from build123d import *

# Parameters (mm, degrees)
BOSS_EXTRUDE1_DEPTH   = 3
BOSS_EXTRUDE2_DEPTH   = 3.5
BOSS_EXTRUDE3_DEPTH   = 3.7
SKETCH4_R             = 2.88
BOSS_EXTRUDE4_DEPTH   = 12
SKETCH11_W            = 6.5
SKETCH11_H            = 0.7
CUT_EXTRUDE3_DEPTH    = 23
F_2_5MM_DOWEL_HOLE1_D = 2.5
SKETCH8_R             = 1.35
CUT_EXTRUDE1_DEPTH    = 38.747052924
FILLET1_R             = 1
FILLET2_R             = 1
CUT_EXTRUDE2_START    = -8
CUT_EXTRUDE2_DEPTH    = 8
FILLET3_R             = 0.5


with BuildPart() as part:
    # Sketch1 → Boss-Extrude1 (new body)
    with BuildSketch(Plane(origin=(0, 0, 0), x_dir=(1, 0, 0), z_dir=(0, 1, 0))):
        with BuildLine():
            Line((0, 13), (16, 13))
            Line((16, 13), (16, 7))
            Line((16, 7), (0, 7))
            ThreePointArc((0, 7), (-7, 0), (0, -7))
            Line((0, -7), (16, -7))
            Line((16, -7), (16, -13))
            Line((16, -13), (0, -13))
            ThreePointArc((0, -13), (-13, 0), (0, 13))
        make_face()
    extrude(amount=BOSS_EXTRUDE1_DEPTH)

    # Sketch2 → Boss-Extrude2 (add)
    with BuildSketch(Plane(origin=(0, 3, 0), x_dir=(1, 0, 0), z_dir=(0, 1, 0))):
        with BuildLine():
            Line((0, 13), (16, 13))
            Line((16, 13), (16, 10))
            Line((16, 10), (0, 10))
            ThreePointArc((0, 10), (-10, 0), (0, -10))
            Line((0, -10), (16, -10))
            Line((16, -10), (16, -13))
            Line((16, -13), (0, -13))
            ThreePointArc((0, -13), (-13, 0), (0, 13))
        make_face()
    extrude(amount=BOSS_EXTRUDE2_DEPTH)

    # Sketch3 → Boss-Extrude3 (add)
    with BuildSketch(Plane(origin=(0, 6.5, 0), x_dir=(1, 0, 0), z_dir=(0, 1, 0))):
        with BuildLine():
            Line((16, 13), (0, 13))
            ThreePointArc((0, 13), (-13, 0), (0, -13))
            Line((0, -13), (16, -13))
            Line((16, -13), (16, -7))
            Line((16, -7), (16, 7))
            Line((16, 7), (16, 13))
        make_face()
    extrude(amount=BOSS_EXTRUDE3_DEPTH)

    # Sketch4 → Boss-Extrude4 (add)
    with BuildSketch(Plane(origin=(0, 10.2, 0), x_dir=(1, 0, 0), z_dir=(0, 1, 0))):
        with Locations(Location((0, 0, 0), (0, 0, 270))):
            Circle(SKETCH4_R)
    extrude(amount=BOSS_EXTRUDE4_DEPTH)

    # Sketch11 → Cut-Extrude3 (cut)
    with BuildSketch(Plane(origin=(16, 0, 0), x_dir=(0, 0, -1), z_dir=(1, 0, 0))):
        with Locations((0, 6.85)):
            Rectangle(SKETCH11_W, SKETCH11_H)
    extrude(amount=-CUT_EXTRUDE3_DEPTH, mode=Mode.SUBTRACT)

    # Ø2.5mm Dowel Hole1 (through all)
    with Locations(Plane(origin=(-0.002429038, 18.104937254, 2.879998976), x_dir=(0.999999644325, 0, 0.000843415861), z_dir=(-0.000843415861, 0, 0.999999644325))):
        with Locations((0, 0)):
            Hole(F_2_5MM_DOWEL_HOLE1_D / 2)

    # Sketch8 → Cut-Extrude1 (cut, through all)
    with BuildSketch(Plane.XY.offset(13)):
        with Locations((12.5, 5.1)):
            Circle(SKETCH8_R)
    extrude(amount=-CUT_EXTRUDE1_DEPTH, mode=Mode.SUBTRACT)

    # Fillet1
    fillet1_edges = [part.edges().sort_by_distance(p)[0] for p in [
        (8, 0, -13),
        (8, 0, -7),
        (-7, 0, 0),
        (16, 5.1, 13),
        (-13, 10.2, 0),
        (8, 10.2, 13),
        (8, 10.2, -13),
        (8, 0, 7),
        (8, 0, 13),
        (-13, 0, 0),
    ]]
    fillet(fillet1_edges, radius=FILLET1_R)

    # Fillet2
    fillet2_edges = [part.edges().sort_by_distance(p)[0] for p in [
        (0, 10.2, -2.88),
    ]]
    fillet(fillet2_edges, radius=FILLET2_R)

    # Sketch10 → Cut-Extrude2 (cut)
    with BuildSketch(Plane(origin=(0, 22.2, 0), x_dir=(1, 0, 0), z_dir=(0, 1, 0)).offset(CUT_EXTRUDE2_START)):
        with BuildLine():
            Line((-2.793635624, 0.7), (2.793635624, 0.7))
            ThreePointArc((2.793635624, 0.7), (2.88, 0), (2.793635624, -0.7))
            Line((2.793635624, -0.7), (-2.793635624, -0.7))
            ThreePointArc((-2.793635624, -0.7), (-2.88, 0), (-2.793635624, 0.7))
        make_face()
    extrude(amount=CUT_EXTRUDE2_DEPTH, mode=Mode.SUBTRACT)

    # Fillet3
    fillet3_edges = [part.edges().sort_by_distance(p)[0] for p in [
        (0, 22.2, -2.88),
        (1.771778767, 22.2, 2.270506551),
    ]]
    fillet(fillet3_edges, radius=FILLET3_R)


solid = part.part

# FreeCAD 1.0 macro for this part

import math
import FreeCAD as App
import Part
import Sketcher
from FreeCAD import Vector


def edges_at(feature, points):
    """Names of the edges that pass closest to the given points."""
    edges = feature.Shape.Edges
    near = lambda p: min(range(len(edges)), key=lambda i: edges[i].distToShape(Part.Vertex(*p))[0])
    return sorted({f"Edge{near(p) + 1}" for p in points})

doc = App.newDocument("Part")
params = doc.addObject("Spreadsheet::Sheet", "Params")
for row, (alias, value) in enumerate([
    ("sketch1_radius", "13 mm"),
    ("sketch1_radius2", "7 mm"),
    ("sketch1_width", "16 mm"),
    ("pad1_length", "3 mm"),
    ("sketch2_radius", "13 mm"),
    ("sketch2_radius2", "10 mm"),
    ("sketch2_width", "16 mm"),
    ("pad2_length", "3.5 mm"),
    ("sketch3_radius", "13 mm"),
    ("sketch3_width", "16 mm"),
    ("pad3_length", "3.7 mm"),
    ("sketch4_diameter", "5.76 mm"),
    ("pad4_length", "12 mm"),
    ("sketch5_width", "0.7 mm"),
    ("sketch5_height", "6.5 mm"),
    ("pocket1_length", "23 mm"),
    ("sketch6_diameter", "2.5 mm"),
    ("hole_diameter", "2.5 mm"),
    ("sketch7_diameter", "2.7 mm"),
    ("fillet_radius", "1 mm"),
    ("fillet2_radius", "1 mm"),
    ("sketch8_radius", "2.88 mm"),
    ("pocket3_length", "8 mm"),
    ("fillet3_radius", "0.5 mm"),
], start=1):
    params.set(f"A{row}", alias)
    params.set(f"B{row}", "=" + value)
    params.setAlias(f"B{row}", alias)

body = doc.addObject("PartDesign::Body", "Body")

# Sketch on XZ plane
sketch1 = doc.addObject("Sketcher::SketchObject", "Sketch")
body.addObject(sketch1)
sketch1.AttachmentSupport = (doc.XZ_Plane, [""])
sketch1.MapMode = "FlatFace"
sketch1.addGeometry(Part.LineSegment(Vector(16, -13, 0), Vector(0, -13, 0)), False)
sketch1.addGeometry(Part.ArcOfCircle(Part.Circle(Vector(0, 0, 0), Vector(0, 0, 1), 13), math.radians(90), math.radians(270)), False)
sketch1.addGeometry(Part.LineSegment(Vector(0, 13, 0), Vector(16, 13, 0)), False)
sketch1.addGeometry(Part.LineSegment(Vector(16, 13, 0), Vector(16, 7, 0)), False)
sketch1.addGeometry(Part.LineSegment(Vector(16, 7, 0), Vector(0, 7, 0)), False)
sketch1.addGeometry(Part.ArcOfCircle(Part.Circle(Vector(0, 0, 0), Vector(0, 0, 1), 7), math.radians(90), math.radians(270)), False)
sketch1.addGeometry(Part.LineSegment(Vector(0, -7, 0), Vector(16, -7, 0)), False)
sketch1.addGeometry(Part.LineSegment(Vector(16, -7, 0), Vector(16, -13, 0)), False)
sketch1.addConstraint(Sketcher.Constraint("Tangent", 0, 2, 1, 2))
sketch1.addConstraint(Sketcher.Constraint("Tangent", 1, 1, 2, 1))
sketch1.addConstraint(Sketcher.Constraint("Coincident", 2, 2, 3, 1))
sketch1.addConstraint(Sketcher.Constraint("Coincident", 3, 2, 4, 1))
sketch1.addConstraint(Sketcher.Constraint("Tangent", 4, 2, 5, 1))
sketch1.addConstraint(Sketcher.Constraint("Tangent", 5, 2, 6, 1))
sketch1.addConstraint(Sketcher.Constraint("Coincident", 6, 2, 7, 1))
sketch1.addConstraint(Sketcher.Constraint("Coincident", 7, 2, 0, 1))
sketch1.addConstraint(Sketcher.Constraint("Horizontal", 0))
sketch1.addConstraint(Sketcher.Constraint("Horizontal", 2))
sketch1.addConstraint(Sketcher.Constraint("Vertical", 3))
sketch1.addConstraint(Sketcher.Constraint("Horizontal", 4))
sketch1.addConstraint(Sketcher.Constraint("Horizontal", 6))
sketch1.addConstraint(Sketcher.Constraint("Vertical", 7))
sketch1.addConstraint(Sketcher.Constraint("Coincident", 1, 3, -1, 1))
sketch1.addConstraint(Sketcher.Constraint("Coincident", 5, 3, -1, 1))
sketch1.addConstraint(Sketcher.Constraint("Vertical", 3, 2, 6, 2))
sketch1.addConstraint(Sketcher.Constraint("Radius", 1, 13.0))
sketch1.addConstraint(Sketcher.Constraint("Radius", 5, 7.0))
sketch1.addConstraint(Sketcher.Constraint("DistanceX", 0, 2, 0, 1, 16.0))
sketch1.setExpression("Constraints[17]", "Params.sketch1_radius")
sketch1.setExpression("Constraints[18]", "Params.sketch1_radius2")
sketch1.setExpression("Constraints[19]", "Params.sketch1_width")
pad1 = doc.addObject("PartDesign::Pad", "Pad")
body.addObject(pad1)
pad1.Profile = sketch1
pad1.setExpression("Length", "Params.pad1_length")
pad1.Reversed = True

# Sketch on XZ plane
sketch2 = doc.addObject("Sketcher::SketchObject", "Sketch001")
body.addObject(sketch2)
sketch2.AttachmentSupport = (doc.XZ_Plane, [""])
sketch2.MapMode = "FlatFace"
sketch2.AttachmentOffset = App.Placement(Vector(0, 0, -3), App.Rotation())
sketch2.addGeometry(Part.LineSegment(Vector(16, -13, 0), Vector(0, -13, 0)), False)
sketch2.addGeometry(Part.ArcOfCircle(Part.Circle(Vector(0, 0, 0), Vector(0, 0, 1), 13), math.radians(90), math.radians(270)), False)
sketch2.addGeometry(Part.LineSegment(Vector(0, 13, 0), Vector(16, 13, 0)), False)
sketch2.addGeometry(Part.LineSegment(Vector(16, 13, 0), Vector(16, 10, 0)), False)
sketch2.addGeometry(Part.LineSegment(Vector(16, 10, 0), Vector(0, 10, 0)), False)
sketch2.addGeometry(Part.ArcOfCircle(Part.Circle(Vector(0, 0, 0), Vector(0, 0, 1), 10), math.radians(90), math.radians(270)), False)
sketch2.addGeometry(Part.LineSegment(Vector(0, -10, 0), Vector(16, -10, 0)), False)
sketch2.addGeometry(Part.LineSegment(Vector(16, -10, 0), Vector(16, -13, 0)), False)
sketch2.addConstraint(Sketcher.Constraint("Tangent", 0, 2, 1, 2))
sketch2.addConstraint(Sketcher.Constraint("Tangent", 1, 1, 2, 1))
sketch2.addConstraint(Sketcher.Constraint("Coincident", 2, 2, 3, 1))
sketch2.addConstraint(Sketcher.Constraint("Coincident", 3, 2, 4, 1))
sketch2.addConstraint(Sketcher.Constraint("Tangent", 4, 2, 5, 1))
sketch2.addConstraint(Sketcher.Constraint("Tangent", 5, 2, 6, 1))
sketch2.addConstraint(Sketcher.Constraint("Coincident", 6, 2, 7, 1))
sketch2.addConstraint(Sketcher.Constraint("Coincident", 7, 2, 0, 1))
sketch2.addConstraint(Sketcher.Constraint("Horizontal", 0))
sketch2.addConstraint(Sketcher.Constraint("Horizontal", 2))
sketch2.addConstraint(Sketcher.Constraint("Vertical", 3))
sketch2.addConstraint(Sketcher.Constraint("Horizontal", 4))
sketch2.addConstraint(Sketcher.Constraint("Horizontal", 6))
sketch2.addConstraint(Sketcher.Constraint("Vertical", 7))
sketch2.addConstraint(Sketcher.Constraint("Coincident", 1, 3, -1, 1))
sketch2.addConstraint(Sketcher.Constraint("Coincident", 5, 3, -1, 1))
sketch2.addConstraint(Sketcher.Constraint("Vertical", 3, 2, 6, 2))
sketch2.addConstraint(Sketcher.Constraint("Radius", 1, 13.0))
sketch2.addConstraint(Sketcher.Constraint("Radius", 5, 10.0))
sketch2.addConstraint(Sketcher.Constraint("DistanceX", 0, 2, 0, 1, 16.0))
sketch2.setExpression("Constraints[17]", "Params.sketch2_radius")
sketch2.setExpression("Constraints[18]", "Params.sketch2_radius2")
sketch2.setExpression("Constraints[19]", "Params.sketch2_width")
pad2 = doc.addObject("PartDesign::Pad", "Pad001")
body.addObject(pad2)
pad2.Profile = sketch2
pad2.setExpression("Length", "Params.pad2_length")
pad2.Reversed = True

# Sketch on XZ plane
sketch3 = doc.addObject("Sketcher::SketchObject", "Sketch002")
body.addObject(sketch3)
sketch3.AttachmentSupport = (doc.XZ_Plane, [""])
sketch3.MapMode = "FlatFace"
sketch3.AttachmentOffset = App.Placement(Vector(0, 0, -6.5), App.Rotation())
sketch3.addGeometry(Part.LineSegment(Vector(16, -13, 0), Vector(0, -13, 0)), False)
sketch3.addGeometry(Part.ArcOfCircle(Part.Circle(Vector(0, 0, 0), Vector(0, 0, 1), 13), math.radians(90), math.radians(270)), False)
sketch3.addGeometry(Part.LineSegment(Vector(0, 13, 0), Vector(16, 13, 0)), False)
sketch3.addGeometry(Part.LineSegment(Vector(16, 13, 0), Vector(16, -13, 0)), False)
sketch3.addConstraint(Sketcher.Constraint("Tangent", 0, 2, 1, 2))
sketch3.addConstraint(Sketcher.Constraint("Tangent", 1, 1, 2, 1))
sketch3.addConstraint(Sketcher.Constraint("Coincident", 2, 2, 3, 1))
sketch3.addConstraint(Sketcher.Constraint("Coincident", 3, 2, 0, 1))
sketch3.addConstraint(Sketcher.Constraint("Horizontal", 0))
sketch3.addConstraint(Sketcher.Constraint("Horizontal", 2))
sketch3.addConstraint(Sketcher.Constraint("Vertical", 3))
sketch3.addConstraint(Sketcher.Constraint("Coincident", 1, 3, -1, 1))
sketch3.addConstraint(Sketcher.Constraint("Radius", 1, 13.0))
sketch3.addConstraint(Sketcher.Constraint("DistanceX", 0, 2, 0, 1, 16.0))
sketch3.setExpression("Constraints[8]", "Params.sketch3_radius")
sketch3.setExpression("Constraints[9]", "Params.sketch3_width")
pad3 = doc.addObject("PartDesign::Pad", "Pad002")
body.addObject(pad3)
pad3.Profile = sketch3
pad3.setExpression("Length", "Params.pad3_length")
pad3.Reversed = True

# Sketch on XZ plane
sketch4 = doc.addObject("Sketcher::SketchObject", "Sketch003")
body.addObject(sketch4)
sketch4.AttachmentSupport = (doc.XZ_Plane, [""])
sketch4.MapMode = "FlatFace"
sketch4.AttachmentOffset = App.Placement(Vector(0, 0, -10.2), App.Rotation())
sketch4.addGeometry(Part.Circle(Vector(0, 0, 0), Vector(0, 0, 1), 2.9), False)
sketch4.addConstraint(Sketcher.Constraint("Coincident", 0, 3, -1, 1))
sketch4.addConstraint(Sketcher.Constraint("Diameter", 0, 5.76))
sketch4.setExpression("Constraints[1]", "Params.sketch4_diameter")
pad4 = doc.addObject("PartDesign::Pad", "Pad003")
body.addObject(pad4)
pad4.Profile = sketch4
pad4.setExpression("Length", "Params.pad4_length")
pad4.Reversed = True

# Sketch on YZ plane
sketch5 = doc.addObject("Sketcher::SketchObject", "Sketch004")
body.addObject(sketch5)
sketch5.AttachmentSupport = (doc.YZ_Plane, [""])
sketch5.MapMode = "FlatFace"
sketch5.AttachmentOffset = App.Placement(Vector(0, 0, 16), App.Rotation())
sketch5.addGeometry(Part.LineSegment(Vector(7.2, 3.2, 0), Vector(6.5, 3.2, 0)), False)
sketch5.addGeometry(Part.LineSegment(Vector(6.5, 3.2, 0), Vector(6.5, -3.2, 0)), False)
sketch5.addGeometry(Part.LineSegment(Vector(6.5, -3.2, 0), Vector(7.2, -3.2, 0)), False)
sketch5.addGeometry(Part.LineSegment(Vector(7.2, -3.2, 0), Vector(7.2, 3.2, 0)), False)
sketch5.addConstraint(Sketcher.Constraint("Coincident", 0, 2, 1, 1))
sketch5.addConstraint(Sketcher.Constraint("Coincident", 1, 2, 2, 1))
sketch5.addConstraint(Sketcher.Constraint("Coincident", 2, 2, 3, 1))
sketch5.addConstraint(Sketcher.Constraint("Coincident", 3, 2, 0, 1))
sketch5.addConstraint(Sketcher.Constraint("Horizontal", 0))
sketch5.addConstraint(Sketcher.Constraint("Vertical", 1))
sketch5.addConstraint(Sketcher.Constraint("Horizontal", 2))
sketch5.addConstraint(Sketcher.Constraint("Vertical", 3))
sketch5.addConstraint(Sketcher.Constraint("DistanceX", 0, 2, 0, 1, 0.7))
sketch5.addConstraint(Sketcher.Constraint("DistanceY", 1, 2, 1, 1, 6.5))
sketch5.addConstraint(Sketcher.Constraint("DistanceX", -1, 1, 0, 2, 6.5))
sketch5.addConstraint(Sketcher.Constraint("DistanceY", -1, 1, 0, 2, 3.25))
sketch5.setExpression("Constraints[8]", "Params.sketch5_width")
sketch5.setExpression("Constraints[9]", "Params.sketch5_height")
pocket1 = doc.addObject("PartDesign::Pocket", "Pocket")
body.addObject(pocket1)
pocket1.Profile = sketch5
pocket1.setExpression("Length", "Params.pocket1_length")

# Sketch on an angled plane
sketch6 = doc.addObject("Sketcher::SketchObject", "Sketch005")
body.addObject(sketch6)
sketch6.Placement = App.Placement(Vector(-0.002429, 0, 2.879999), App.Rotation(Vector(0.999999644, 0, 0.000843416), Vector(0, 0.999999999, 0), Vector(-0.000843416, 0, 0.999999644), "ZXY"))
sketch6.addGeometry(Part.Circle(Vector(0, 18.1, 0), Vector(0, 0, 1), 1.2), False)
sketch6.addConstraint(Sketcher.Constraint("PointOnObject", 0, 3, -2))
sketch6.addConstraint(Sketcher.Constraint("Diameter", 0, 2.5))
sketch6.addConstraint(Sketcher.Constraint("DistanceY", -1, 1, 0, 3, 18.104937))
sketch6.setExpression("Constraints[1]", "Params.sketch6_diameter")
doc.recompute()
hole = doc.addObject("PartDesign::Hole", "Hole")
body.addObject(hole)
hole.Profile = sketch6
hole.ThreadType = "None"
hole.setExpression("Diameter", "Params.hole_diameter")
hole.DepthType = "ThroughAll"

# Sketch on XY plane
sketch7 = doc.addObject("Sketcher::SketchObject", "Sketch006")
body.addObject(sketch7)
sketch7.AttachmentSupport = (doc.XY_Plane, [""])
sketch7.MapMode = "FlatFace"
sketch7.AttachmentOffset = App.Placement(Vector(0, 0, 13), App.Rotation())
sketch7.addGeometry(Part.Circle(Vector(12.5, 5.1, 0), Vector(0, 0, 1), 1.4), False)
sketch7.addConstraint(Sketcher.Constraint("Diameter", 0, 2.7))
sketch7.addConstraint(Sketcher.Constraint("DistanceX", -1, 1, 0, 3, 12.5))
sketch7.addConstraint(Sketcher.Constraint("DistanceY", -1, 1, 0, 3, 5.1))
sketch7.setExpression("Constraints[0]", "Params.sketch7_diameter")
pocket2 = doc.addObject("PartDesign::Pocket", "Pocket001")
body.addObject(pocket2)
pocket2.Profile = sketch7
pocket2.Type = "ThroughAll"
doc.recompute()

fillet = doc.addObject("PartDesign::Fillet", "Fillet")
body.addObject(fillet)
fillet.Base = (pocket2, edges_at(pocket2, [
    (8, 0, -13),
    (8, 0, -7),
    (-7, 0, 0),
    (16, 5.1, 13),
    (-13, 10.2, 0),
    (8, 10.2, 13),
    (8, 10.2, -13),
    (8, 0, 7),
    (8, 0, 13),
    (-13, 0, 0),
]))
fillet.setExpression("Radius", "Params.fillet_radius")
doc.recompute()

fillet2 = doc.addObject("PartDesign::Fillet", "Fillet001")
body.addObject(fillet2)
fillet2.Base = (fillet, edges_at(fillet, [(0, 10.2, -2.88)]))
fillet2.setExpression("Radius", "Params.fillet2_radius")

# Sketch on XZ plane
sketch8 = doc.addObject("Sketcher::SketchObject", "Sketch007")
body.addObject(sketch8)
sketch8.AttachmentSupport = (doc.XZ_Plane, [""])
sketch8.MapMode = "FlatFace"
sketch8.AttachmentOffset = App.Placement(Vector(0, 0, -14.2), App.Rotation())
sketch8.addGeometry(Part.LineSegment(Vector(2.8, -0.7, 0), Vector(-2.8, -0.7, 0)), False)
sketch8.addGeometry(Part.ArcOfCircle(Part.Circle(Vector(0, 0, 0), Vector(0, 0, 1), 2.9), math.radians(166), math.radians(194)), False)
sketch8.addGeometry(Part.LineSegment(Vector(-2.8, 0.7, 0), Vector(2.8, 0.7, 0)), False)
sketch8.addGeometry(Part.ArcOfCircle(Part.Circle(Vector(0, 0, 0), Vector(0, 0, 1), 2.9), math.radians(-14), math.radians(14)), False)
sketch8.addConstraint(Sketcher.Constraint("Coincident", 0, 2, 1, 2))
sketch8.addConstraint(Sketcher.Constraint("Coincident", 1, 1, 2, 1))
sketch8.addConstraint(Sketcher.Constraint("Coincident", 2, 2, 3, 2))
sketch8.addConstraint(Sketcher.Constraint("Coincident", 3, 1, 0, 1))
sketch8.addConstraint(Sketcher.Constraint("Horizontal", 0))
sketch8.addConstraint(Sketcher.Constraint("Horizontal", 2))
sketch8.addConstraint(Sketcher.Constraint("Coincident", 1, 3, -1, 1))
sketch8.addConstraint(Sketcher.Constraint("Coincident", 3, 3, -1, 1))
sketch8.addConstraint(Sketcher.Constraint("Equal", 1, 3))
sketch8.addConstraint(Sketcher.Constraint("Vertical", 0, 2, 1, 1))
sketch8.addConstraint(Sketcher.Constraint("Radius", 1, 2.88))
sketch8.addConstraint(Sketcher.Constraint("DistanceY", 0, 2, -1, 1, 0.7))
sketch8.setExpression("Constraints[10]", "Params.sketch8_radius")
pocket3 = doc.addObject("PartDesign::Pocket", "Pocket002")
body.addObject(pocket3)
pocket3.Profile = sketch8
pocket3.setExpression("Length", "Params.pocket3_length")
doc.recompute()

fillet3 = doc.addObject("PartDesign::Fillet", "Fillet002")
body.addObject(fillet3)
fillet3.Base = (pocket3, edges_at(pocket3, [(0, 22.2, -2.88), (1.772, 22.2, 2.271)]))
fillet3.setExpression("Radius", "Params.fillet3_radius")

doc.recompute()
